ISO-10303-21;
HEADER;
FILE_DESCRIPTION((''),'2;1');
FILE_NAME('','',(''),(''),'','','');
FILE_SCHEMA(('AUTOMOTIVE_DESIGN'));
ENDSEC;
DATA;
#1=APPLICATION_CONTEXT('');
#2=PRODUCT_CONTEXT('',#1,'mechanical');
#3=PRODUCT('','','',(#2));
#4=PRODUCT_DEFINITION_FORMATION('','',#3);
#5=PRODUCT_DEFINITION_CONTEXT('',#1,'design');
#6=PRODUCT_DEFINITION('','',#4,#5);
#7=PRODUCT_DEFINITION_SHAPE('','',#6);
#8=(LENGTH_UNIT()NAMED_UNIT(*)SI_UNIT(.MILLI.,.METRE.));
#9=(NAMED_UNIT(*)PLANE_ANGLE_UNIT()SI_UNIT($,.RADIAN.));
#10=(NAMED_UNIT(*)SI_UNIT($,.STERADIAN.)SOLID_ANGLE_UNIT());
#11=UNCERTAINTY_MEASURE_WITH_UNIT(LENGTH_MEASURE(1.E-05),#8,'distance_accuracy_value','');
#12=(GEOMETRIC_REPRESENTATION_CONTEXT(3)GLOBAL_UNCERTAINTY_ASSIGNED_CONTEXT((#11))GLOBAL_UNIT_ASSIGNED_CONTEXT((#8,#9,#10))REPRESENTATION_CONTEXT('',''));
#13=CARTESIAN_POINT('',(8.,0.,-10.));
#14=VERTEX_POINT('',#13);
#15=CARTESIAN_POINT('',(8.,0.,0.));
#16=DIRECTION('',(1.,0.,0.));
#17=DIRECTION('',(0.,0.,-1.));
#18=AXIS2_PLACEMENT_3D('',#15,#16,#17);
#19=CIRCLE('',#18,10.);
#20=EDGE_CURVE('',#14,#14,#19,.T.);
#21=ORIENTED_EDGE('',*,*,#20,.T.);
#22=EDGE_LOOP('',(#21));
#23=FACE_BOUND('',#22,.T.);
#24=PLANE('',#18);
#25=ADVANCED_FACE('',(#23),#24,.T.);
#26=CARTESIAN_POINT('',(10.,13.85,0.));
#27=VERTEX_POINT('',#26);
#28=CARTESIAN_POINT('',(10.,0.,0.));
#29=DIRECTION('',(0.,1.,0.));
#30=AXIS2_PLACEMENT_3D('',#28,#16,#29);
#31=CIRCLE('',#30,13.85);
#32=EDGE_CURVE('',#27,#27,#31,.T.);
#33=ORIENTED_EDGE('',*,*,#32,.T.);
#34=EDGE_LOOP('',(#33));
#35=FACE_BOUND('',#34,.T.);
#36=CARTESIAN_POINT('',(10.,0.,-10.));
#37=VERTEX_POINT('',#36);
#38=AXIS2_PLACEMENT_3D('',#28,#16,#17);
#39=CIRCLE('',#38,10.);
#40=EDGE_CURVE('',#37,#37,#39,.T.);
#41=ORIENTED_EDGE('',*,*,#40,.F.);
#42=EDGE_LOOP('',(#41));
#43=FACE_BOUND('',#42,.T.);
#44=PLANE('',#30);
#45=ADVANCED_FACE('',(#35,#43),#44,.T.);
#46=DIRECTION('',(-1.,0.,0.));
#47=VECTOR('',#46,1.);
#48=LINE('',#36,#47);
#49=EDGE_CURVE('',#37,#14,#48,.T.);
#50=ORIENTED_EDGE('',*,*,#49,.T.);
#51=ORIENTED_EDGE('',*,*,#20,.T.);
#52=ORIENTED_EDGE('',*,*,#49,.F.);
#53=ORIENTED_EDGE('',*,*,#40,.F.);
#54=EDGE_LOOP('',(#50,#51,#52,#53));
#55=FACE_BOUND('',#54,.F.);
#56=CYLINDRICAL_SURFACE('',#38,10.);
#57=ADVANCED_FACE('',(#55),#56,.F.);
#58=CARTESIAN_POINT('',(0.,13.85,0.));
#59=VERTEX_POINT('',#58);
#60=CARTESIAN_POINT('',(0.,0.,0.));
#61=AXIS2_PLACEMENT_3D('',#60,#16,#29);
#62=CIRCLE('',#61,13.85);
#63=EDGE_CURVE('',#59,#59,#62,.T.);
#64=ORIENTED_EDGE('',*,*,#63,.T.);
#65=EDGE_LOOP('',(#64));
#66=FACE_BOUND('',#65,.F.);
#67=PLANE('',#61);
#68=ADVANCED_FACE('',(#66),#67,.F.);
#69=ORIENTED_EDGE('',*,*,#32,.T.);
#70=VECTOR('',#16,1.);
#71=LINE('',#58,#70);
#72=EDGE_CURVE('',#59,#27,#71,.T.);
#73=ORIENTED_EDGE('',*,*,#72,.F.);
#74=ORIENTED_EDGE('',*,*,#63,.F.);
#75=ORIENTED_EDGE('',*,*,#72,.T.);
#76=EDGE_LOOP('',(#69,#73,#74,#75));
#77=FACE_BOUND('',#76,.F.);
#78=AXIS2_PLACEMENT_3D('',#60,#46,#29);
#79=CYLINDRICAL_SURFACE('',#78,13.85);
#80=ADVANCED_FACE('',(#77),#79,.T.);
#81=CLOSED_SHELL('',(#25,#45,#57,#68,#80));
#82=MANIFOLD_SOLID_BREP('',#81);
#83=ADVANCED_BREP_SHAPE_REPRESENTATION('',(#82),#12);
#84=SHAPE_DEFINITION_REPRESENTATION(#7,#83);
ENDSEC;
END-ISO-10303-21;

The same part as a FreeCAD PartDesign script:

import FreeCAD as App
import Part
import Sketcher
from FreeCAD import Vector

doc = App.newDocument("Part")
body = doc.addObject("PartDesign::Body", "Body")

# Sketch on YZ plane
sketch1 = doc.addObject("Sketcher::SketchObject", "Sketch")
body.addObject(sketch1)
sketch1.AttachmentSupport = (doc.YZ_Plane, [""])
sketch1.MapMode = "FlatFace"
sketch1.addGeometry(Part.Circle(Vector(0, 0, 0), Vector(0, 0, 1), 14), False)
sketch1.addConstraint(Sketcher.Constraint("Coincident", 0, 3, -1, 1))
sketch1.addConstraint(Sketcher.Constraint("Diameter", 0, 27.7))
pad1 = doc.addObject("PartDesign::Pad", "Pad")
body.addObject(pad1)
pad1.Profile = sketch1
pad1.Length = 10

# Sketch on YZ plane
sketch2 = doc.addObject("Sketcher::SketchObject", "Sketch001")
body.addObject(sketch2)
sketch2.AttachmentSupport = (doc.YZ_Plane, [""])
sketch2.MapMode = "FlatFace"
sketch2.AttachmentOffset = App.Placement(Vector(0, 0, 10), App.Rotation())
sketch2.addGeometry(Part.Circle(Vector(0, 0, 0), Vector(0, 0, 1), 10), False)
sketch2.addConstraint(Sketcher.Constraint("Coincident", 0, 3, -1, 1))
sketch2.addConstraint(Sketcher.Constraint("Diameter", 0, 20.0))
pocket1 = doc.addObject("PartDesign::Pocket", "Pocket")
body.addObject(pocket1)
pocket1.Profile = sketch2
pocket1.Length = 2

doc.recompute()
